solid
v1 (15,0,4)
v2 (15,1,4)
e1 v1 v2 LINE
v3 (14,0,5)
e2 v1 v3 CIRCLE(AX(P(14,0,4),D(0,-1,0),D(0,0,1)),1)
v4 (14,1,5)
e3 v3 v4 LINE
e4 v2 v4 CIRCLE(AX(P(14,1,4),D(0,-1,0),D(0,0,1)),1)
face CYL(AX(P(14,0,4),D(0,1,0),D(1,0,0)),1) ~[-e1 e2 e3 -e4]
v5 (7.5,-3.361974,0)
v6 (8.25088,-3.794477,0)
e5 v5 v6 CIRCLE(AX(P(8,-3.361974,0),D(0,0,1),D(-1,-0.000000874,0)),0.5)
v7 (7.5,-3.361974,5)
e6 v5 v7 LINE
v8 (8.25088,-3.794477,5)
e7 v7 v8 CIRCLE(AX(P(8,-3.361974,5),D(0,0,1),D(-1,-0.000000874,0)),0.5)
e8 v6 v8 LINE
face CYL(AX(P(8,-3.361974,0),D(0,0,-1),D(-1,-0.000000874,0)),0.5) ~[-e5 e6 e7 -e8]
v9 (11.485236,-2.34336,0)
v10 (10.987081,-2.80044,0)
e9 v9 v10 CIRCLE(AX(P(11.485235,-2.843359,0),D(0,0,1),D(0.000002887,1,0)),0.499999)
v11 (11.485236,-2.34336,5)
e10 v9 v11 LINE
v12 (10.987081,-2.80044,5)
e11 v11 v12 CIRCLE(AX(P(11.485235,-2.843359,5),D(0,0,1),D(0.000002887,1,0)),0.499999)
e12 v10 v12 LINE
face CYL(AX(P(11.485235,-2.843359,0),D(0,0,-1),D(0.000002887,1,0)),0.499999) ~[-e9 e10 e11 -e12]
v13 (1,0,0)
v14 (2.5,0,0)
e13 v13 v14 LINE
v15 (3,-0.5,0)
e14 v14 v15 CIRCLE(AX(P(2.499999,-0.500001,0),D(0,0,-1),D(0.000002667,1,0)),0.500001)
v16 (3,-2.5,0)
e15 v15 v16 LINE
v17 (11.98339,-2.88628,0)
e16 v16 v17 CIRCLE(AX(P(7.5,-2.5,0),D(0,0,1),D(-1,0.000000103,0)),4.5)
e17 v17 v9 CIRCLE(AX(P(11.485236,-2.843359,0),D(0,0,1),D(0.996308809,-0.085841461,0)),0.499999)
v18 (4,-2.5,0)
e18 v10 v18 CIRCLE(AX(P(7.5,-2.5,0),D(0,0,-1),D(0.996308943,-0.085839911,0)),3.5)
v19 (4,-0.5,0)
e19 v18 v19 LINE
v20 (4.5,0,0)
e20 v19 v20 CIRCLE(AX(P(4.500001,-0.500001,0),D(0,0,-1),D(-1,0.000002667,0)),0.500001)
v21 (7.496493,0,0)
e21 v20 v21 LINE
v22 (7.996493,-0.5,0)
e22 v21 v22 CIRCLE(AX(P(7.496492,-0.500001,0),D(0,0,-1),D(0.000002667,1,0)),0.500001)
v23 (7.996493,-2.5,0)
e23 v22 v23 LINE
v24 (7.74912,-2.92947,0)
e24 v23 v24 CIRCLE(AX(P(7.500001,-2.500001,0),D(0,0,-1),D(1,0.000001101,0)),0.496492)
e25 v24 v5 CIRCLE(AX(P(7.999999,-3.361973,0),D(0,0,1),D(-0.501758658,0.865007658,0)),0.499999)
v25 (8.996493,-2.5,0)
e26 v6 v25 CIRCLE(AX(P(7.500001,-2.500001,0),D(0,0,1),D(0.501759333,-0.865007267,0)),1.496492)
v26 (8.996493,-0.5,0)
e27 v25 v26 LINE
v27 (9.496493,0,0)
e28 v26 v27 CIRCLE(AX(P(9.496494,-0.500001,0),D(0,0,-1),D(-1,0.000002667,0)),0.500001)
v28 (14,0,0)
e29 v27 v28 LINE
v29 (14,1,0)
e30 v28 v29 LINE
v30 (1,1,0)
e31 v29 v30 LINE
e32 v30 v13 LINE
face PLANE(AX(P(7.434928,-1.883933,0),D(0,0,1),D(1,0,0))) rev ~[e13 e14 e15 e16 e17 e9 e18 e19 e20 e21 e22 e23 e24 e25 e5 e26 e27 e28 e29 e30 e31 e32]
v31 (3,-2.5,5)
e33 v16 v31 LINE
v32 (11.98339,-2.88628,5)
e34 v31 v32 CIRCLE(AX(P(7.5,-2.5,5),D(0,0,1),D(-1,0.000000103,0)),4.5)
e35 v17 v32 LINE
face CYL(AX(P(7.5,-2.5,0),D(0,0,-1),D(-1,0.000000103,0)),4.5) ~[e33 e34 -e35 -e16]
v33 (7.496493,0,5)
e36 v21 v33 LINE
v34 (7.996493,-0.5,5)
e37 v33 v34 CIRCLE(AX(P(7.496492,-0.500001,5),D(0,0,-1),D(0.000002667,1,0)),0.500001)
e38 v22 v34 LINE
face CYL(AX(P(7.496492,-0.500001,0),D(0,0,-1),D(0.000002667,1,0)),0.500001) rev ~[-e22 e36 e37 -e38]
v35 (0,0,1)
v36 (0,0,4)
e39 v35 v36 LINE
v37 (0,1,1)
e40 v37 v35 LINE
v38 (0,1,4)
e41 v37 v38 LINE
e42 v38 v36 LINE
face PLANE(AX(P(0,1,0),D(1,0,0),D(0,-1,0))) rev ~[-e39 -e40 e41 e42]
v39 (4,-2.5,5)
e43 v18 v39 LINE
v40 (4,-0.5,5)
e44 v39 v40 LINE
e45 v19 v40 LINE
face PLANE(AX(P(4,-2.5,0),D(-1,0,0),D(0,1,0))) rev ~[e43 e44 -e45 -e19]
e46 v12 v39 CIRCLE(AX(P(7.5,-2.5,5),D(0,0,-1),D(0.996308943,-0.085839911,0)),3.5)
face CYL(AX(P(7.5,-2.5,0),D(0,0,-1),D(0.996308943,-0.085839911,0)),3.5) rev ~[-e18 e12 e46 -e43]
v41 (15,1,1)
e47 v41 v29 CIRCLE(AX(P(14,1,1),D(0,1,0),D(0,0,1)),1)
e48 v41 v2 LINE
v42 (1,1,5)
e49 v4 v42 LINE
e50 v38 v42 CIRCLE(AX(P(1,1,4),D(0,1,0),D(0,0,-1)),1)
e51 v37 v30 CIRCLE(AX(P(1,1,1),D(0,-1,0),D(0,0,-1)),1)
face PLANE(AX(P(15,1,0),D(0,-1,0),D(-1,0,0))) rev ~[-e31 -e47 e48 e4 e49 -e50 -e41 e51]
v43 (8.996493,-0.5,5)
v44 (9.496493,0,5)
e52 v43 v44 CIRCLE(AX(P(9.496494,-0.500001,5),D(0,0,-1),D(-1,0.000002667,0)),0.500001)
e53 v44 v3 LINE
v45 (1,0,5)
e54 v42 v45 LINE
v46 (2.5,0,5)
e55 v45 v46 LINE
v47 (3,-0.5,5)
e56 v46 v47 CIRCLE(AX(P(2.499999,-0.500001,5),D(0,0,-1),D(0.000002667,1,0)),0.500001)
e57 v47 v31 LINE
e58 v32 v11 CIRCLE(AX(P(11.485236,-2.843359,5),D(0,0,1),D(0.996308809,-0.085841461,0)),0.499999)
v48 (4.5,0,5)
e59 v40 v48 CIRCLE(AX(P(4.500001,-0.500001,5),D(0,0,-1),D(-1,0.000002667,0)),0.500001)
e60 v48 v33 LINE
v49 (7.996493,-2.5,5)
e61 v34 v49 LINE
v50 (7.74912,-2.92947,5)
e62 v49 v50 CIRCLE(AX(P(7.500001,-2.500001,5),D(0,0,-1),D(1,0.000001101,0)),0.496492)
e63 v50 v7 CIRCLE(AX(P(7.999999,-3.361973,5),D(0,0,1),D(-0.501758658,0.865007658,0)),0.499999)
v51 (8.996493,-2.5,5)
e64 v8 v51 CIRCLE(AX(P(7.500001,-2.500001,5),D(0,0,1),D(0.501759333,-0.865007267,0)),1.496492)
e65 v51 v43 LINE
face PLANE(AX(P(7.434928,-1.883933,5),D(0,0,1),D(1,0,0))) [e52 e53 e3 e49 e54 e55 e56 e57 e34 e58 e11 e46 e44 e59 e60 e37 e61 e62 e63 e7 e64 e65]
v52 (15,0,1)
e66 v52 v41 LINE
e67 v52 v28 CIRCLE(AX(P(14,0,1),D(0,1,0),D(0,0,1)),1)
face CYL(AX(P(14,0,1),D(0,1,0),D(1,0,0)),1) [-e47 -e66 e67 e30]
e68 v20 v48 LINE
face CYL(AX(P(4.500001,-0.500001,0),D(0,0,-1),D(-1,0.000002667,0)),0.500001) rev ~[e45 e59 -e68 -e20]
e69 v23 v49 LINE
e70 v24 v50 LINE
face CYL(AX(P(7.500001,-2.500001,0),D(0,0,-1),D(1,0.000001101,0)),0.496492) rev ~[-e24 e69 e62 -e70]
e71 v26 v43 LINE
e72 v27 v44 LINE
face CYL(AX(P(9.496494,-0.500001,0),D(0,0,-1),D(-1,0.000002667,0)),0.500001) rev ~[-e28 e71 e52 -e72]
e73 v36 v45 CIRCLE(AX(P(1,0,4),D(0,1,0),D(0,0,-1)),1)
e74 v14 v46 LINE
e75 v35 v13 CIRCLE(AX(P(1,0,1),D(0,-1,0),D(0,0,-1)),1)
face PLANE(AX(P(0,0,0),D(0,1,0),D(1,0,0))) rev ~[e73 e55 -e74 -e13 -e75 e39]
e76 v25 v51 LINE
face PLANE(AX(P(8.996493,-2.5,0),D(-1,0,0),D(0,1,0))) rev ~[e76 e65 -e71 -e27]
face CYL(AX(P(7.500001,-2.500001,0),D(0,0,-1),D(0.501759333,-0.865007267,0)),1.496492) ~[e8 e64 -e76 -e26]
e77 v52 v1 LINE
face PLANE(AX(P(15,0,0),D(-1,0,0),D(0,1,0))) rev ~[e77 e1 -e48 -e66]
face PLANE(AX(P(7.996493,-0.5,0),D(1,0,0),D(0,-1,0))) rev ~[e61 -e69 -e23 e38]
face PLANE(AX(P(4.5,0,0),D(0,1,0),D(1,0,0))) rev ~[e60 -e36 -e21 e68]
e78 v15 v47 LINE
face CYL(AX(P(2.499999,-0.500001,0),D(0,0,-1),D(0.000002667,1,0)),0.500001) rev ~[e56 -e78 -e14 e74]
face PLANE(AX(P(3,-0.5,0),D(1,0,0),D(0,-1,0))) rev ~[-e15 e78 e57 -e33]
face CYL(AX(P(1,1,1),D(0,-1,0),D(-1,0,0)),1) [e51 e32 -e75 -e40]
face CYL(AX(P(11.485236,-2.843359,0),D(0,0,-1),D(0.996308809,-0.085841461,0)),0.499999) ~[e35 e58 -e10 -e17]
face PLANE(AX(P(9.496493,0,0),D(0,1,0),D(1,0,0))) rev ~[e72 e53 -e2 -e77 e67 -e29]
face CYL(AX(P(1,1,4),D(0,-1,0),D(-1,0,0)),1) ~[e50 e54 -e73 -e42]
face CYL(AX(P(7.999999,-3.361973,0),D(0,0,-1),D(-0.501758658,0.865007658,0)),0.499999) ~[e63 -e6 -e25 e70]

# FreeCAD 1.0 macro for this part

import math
import FreeCAD as App
import Part
import Sketcher
from FreeCAD import Vector
Q = App.Units.Quantity


def edges_at(feature, points):
    """Names of the edges that pass closest to the given points."""
    edges = feature.Shape.Edges
    near = lambda p: min(range(len(edges)), key=lambda i: edges[i].distToShape(Part.Vertex(*p))[0])
    return sorted({f"Edge{near(p) + 1}" for p in points})

doc = App.newDocument("Part")
params = doc.addObject("Spreadsheet::Sheet", "Params")
for row, (alias, value) in enumerate([
    ("sketch1_radius", "0.500001 mm"),
    ("sketch1_radius2", "4.5 mm"),
    ("sketch1_width", "15 mm"),
    ("sketch1_height", "2 mm"),
    ("sketch1_height2", "1 mm"),
    ("pad1_length", "5 mm"),
    ("fillet_radius", "1 mm"),
], start=1):
    params.set(f"A{row}", alias)
    params.set(f"B{row}", "=" + value)
    params.setAlias(f"B{row}", alias)

body = doc.addObject("PartDesign::Body", "Body")

# Sketch on XY plane
sketch1 = body.newObject("Sketcher::SketchObject", "Sketch")
sketch1.AttachmentSupport = (doc.getObject("XY_Plane"), [""])
sketch1.MapMode = "FlatFace"
sketch1.addGeometry([
    Part.ArcOfCircle(Part.Circle(Vector(4.5, -0.5, 0), Vector(0, 0, 1), 0.5), math.radians(90), math.radians(180)),  # 0
    Part.LineSegment(Vector(4.5, 0, 0), Vector(7.5, 0, 0)),  # 1
    Part.ArcOfCircle(Part.Circle(Vector(7.5, -0.5, 0), Vector(0, 0, 1), 0.5), math.radians(0), math.radians(90)),  # 2
    Part.LineSegment(Vector(8, -0.5, 0), Vector(8, -2.5, 0)),  # 3
    Part.ArcOfCircle(Part.Circle(Vector(7.5, -2.5, 0), Vector(0, 0, 1), 0.5), math.radians(-60), math.radians(0)),  # 4
    Part.ArcOfCircle(Part.Circle(Vector(8, -3.36, 0), Vector(0, 0, 1), 0.5), math.radians(120), math.radians(180)),  # 5
    Part.ArcOfCircle(Part.Circle(Vector(8, -3.36, 0), Vector(0, 0, 1), 0.5), math.radians(-180), math.radians(-60)),  # 6
    Part.ArcOfCircle(Part.Circle(Vector(7.5, -2.5, 0), Vector(0, 0, 1), 1.5), math.radians(-60), math.radians(0)),  # 7
    Part.LineSegment(Vector(9, -2.5, 0), Vector(9, -0.5, 0)),  # 8
    Part.ArcOfCircle(Part.Circle(Vector(9.5, -0.5, 0), Vector(0, 0, 1), 0.5), math.radians(90), math.radians(180)),  # 9
    Part.LineSegment(Vector(9.5, 0, 0), Vector(15, 0, 0)),  # 10
    Part.LineSegment(Vector(15, 0, 0), Vector(15, 1, 0)),  # 11
    Part.LineSegment(Vector(15, 1, 0), Vector(0, 1, 0)),  # 12
    Part.LineSegment(Vector(0, 1, 0), Vector(0, 0, 0)),  # 13
    Part.LineSegment(Vector(0, 0, 0), Vector(2.5, 0, 0)),  # 14
    Part.ArcOfCircle(Part.Circle(Vector(2.5, -0.5, 0), Vector(0, 0, 1), 0.5), math.radians(0), math.radians(90)),  # 15
    Part.LineSegment(Vector(3, -0.5, 0), Vector(3, -2.5, 0)),  # 16
    Part.ArcOfCircle(Part.Circle(Vector(7.5, -2.5, 0), Vector(0, 0, 1), 4.5), math.radians(180), math.radians(355)),  # 17
    Part.ArcOfCircle(Part.Circle(Vector(11.49, -2.84, 0), Vector(0, 0, 1), 0.5), math.radians(-5), math.radians(90)),  # 18
    Part.ArcOfCircle(Part.Circle(Vector(11.49, -2.84, 0), Vector(0, 0, 1), 0.5), math.radians(90), math.radians(175)),  # 19
    Part.ArcOfCircle(Part.Circle(Vector(7.5, -2.5, 0), Vector(0, 0, 1), 3.5), math.radians(180), math.radians(355)),  # 20
    Part.LineSegment(Vector(4, -2.5, 0), Vector(4, -0.5, 0)),  # 21
], False)
sketch1.addConstraint([
    Sketcher.Constraint("Coincident", 0, 1, 1, 1),
    Sketcher.Constraint("Coincident", 1, 2, 2, 2),
    Sketcher.Constraint("Coincident", 2, 1, 3, 1),
    Sketcher.Constraint("Tangent", 3, 2, 4, 2),
    Sketcher.Constraint("Tangent", 4, 1, 5, 1),
    Sketcher.Constraint("Tangent", 5, 2, 6, 1),
    Sketcher.Constraint("Tangent", 6, 2, 7, 1),
    Sketcher.Constraint("Tangent", 7, 2, 8, 1),
    Sketcher.Constraint("Coincident", 8, 2, 9, 2),
    Sketcher.Constraint("Coincident", 9, 1, 10, 1),
    Sketcher.Constraint("Coincident", 10, 2, 11, 1),
    Sketcher.Constraint("Coincident", 11, 2, 12, 1),
    Sketcher.Constraint("Coincident", 12, 2, 13, 1),
    Sketcher.Constraint("Coincident", 13, 2, 14, 1),
    Sketcher.Constraint("Coincident", 14, 2, 15, 2),
    Sketcher.Constraint("Coincident", 15, 1, 16, 1),
    Sketcher.Constraint("Tangent", 16, 2, 17, 1),
    Sketcher.Constraint("Tangent", 17, 2, 18, 1),
    Sketcher.Constraint("Coincident", 18, 2, 19, 1),
    Sketcher.Constraint("Tangent", 19, 2, 20, 2),
    Sketcher.Constraint("Tangent", 20, 1, 21, 1),
    Sketcher.Constraint("Coincident", 21, 2, 0, 2),
    Sketcher.Constraint("Horizontal", 1),
    Sketcher.Constraint("Vertical", 3),
    Sketcher.Constraint("Vertical", 8),
    Sketcher.Constraint("Horizontal", 10),
    Sketcher.Constraint("Vertical", 11),
    Sketcher.Constraint("Horizontal", 12),
    Sketcher.Constraint("Vertical", 13),
    Sketcher.Constraint("Horizontal", 14),
    Sketcher.Constraint("Vertical", 16),
    Sketcher.Constraint("Vertical", 21),
    Sketcher.Constraint("Coincident", 13, 2, -1, 1),
    Sketcher.Constraint("Coincident", 7, 3, 4, 3),
    Sketcher.Constraint("Coincident", 17, 3, 4, 3),
    Sketcher.Constraint("Coincident", 19, 3, 18, 3),
    Sketcher.Constraint("Coincident", 20, 3, 4, 3),
    Sketcher.Constraint("Equal", 0, 2),
    Sketcher.Constraint("Equal", 5, 6),
    Sketcher.Constraint("Equal", 6, 9),
    Sketcher.Constraint("Equal", 9, 15),
    Sketcher.Constraint("Equal", 6, 18),
    Sketcher.Constraint("PointOnObject", 0, 1, -1),
    Sketcher.Constraint("PointOnObject", 9, 1, -1),
    Sketcher.Constraint("Horizontal", 2, 3, 9, 3),
    Sketcher.Constraint("Horizontal", 15, 3, 2, 1),
    Sketcher.Constraint("Horizontal", 6, 3, 5, 2),
    Sketcher.Constraint("Horizontal", 2, 1, 8, 2),
    Sketcher.Constraint("Horizontal", 8, 2, 15, 1),
    Sketcher.Constraint("Horizontal", 15, 1, 21, 2),
    Sketcher.Constraint("Vertical", 2, 3, 1, 2),
    Sketcher.Constraint("Vertical", 20, 3, 5, 2),
    Sketcher.Constraint("Vertical", 15, 3, 14, 2),
    Sketcher.Constraint("Vertical", 19, 3, 18, 2),
    Sketcher.Constraint("Radius", 0, Q("0.500001 mm")),
    Sketcher.Constraint("Radius", 17, Q("4.5 mm")),
    Sketcher.Constraint("DistanceX", 12, 2, 12, 1, Q("15 mm")),
    Sketcher.Constraint("DistanceY", 3, 2, 3, 1, Q("2 mm")),
    Sketcher.Constraint("DistanceY", 11, 1, 11, 2, Q("1 mm")),
    Sketcher.Constraint("DistanceX", 14, 1, 14, 2, Q("2.5 mm")),
    Sketcher.Constraint("DistanceX", 15, 3, 0, 1, Q("2.000001 mm")),
    Sketcher.Constraint("DistanceX", 1, 2, 9, 1, Q("2 mm")),
    Sketcher.Constraint("Radius", 4, Q("0.496492 mm")),
    Sketcher.Constraint("DistanceY", 18, 3, -1, 1, Q("2.843359 mm")),
])
sketch1.setExpression("Constraints[54]", "Params.sketch1_radius")
sketch1.setExpression("Constraints[55]", "Params.sketch1_radius2")
sketch1.setExpression("Constraints[56]", "Params.sketch1_width")
sketch1.setExpression("Constraints[57]", "Params.sketch1_height")
sketch1.setExpression("Constraints[58]", "Params.sketch1_height2")
pad1 = body.newObject("PartDesign::Pad", "Pad")
pad1.Profile = sketch1
pad1.setExpression("Length", "Params.pad1_length")
doc.recompute()

fillet = body.newObject("PartDesign::Fillet", "Fillet")
fillet.Base = (pad1, edges_at(pad1, [
    (15, 0.5, 5),
    (15, 0.5, 0),
    (0, 0.5, 5),
    (0, 0.5, 0),
]))
fillet.setExpression("Radius", "Params.fillet_radius")

doc.recompute()
